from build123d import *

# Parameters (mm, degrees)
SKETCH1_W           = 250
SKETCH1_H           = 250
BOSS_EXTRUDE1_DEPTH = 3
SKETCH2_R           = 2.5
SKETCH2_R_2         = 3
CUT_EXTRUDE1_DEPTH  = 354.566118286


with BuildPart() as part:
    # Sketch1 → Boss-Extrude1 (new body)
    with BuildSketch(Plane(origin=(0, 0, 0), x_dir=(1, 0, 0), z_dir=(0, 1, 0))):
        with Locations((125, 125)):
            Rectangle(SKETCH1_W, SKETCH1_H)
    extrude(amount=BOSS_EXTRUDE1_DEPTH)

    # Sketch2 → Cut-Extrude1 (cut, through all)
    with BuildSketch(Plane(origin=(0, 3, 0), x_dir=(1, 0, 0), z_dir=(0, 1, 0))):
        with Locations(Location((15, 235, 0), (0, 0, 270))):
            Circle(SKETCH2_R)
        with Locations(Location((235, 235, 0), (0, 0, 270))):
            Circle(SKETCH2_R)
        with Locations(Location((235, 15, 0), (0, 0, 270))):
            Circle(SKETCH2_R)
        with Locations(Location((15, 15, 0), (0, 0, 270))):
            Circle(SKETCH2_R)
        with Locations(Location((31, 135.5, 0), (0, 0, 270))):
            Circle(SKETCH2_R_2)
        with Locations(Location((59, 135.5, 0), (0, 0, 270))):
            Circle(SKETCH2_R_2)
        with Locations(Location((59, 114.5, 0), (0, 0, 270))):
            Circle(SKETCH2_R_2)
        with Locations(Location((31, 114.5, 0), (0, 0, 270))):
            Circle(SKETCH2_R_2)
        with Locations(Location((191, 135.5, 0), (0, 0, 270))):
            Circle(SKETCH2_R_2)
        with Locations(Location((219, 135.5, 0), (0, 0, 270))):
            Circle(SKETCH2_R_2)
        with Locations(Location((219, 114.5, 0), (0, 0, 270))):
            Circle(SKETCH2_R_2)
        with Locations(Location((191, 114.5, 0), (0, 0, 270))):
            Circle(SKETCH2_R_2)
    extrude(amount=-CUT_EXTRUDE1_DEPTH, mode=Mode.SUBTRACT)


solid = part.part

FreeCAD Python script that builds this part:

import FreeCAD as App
import Part
import Sketcher
from FreeCAD import Vector


def add_polygon(sketch, points):
    """Adds a closed chain of lines whose ends are joined by coincident constraints."""
    first, n = sketch.GeometryCount, len(points)
    for a, b in zip(points, points[1:] + points[:1]):
        sketch.addGeometry(Part.LineSegment(App.Vector(*a, 0), App.Vector(*b, 0)), False)
    for i in range(n):
        sketch.addConstraint(Sketcher.Constraint("Coincident", first + i, 2, first + (i + 1) % n, 1))

doc = App.newDocument("Part")
body = doc.addObject("PartDesign::Body", "Body")

# Sketch on XZ plane
sketch1 = doc.addObject("Sketcher::SketchObject", "Sketch")
body.addObject(sketch1)
sketch1.AttachmentSupport = (doc.XZ_Plane, [""])
sketch1.MapMode = "FlatFace"
add_polygon(sketch1, [(0, -250), (0, 0), (250, 0), (250, -250)])  # lines 0-3
sketch1.addConstraint([
    Sketcher.Constraint("Vertical", 0),
    Sketcher.Constraint("Horizontal", 1),
    Sketcher.Constraint("Vertical", 2),
    Sketcher.Constraint("Horizontal", 3),
    Sketcher.Constraint("Coincident", 0, 2, -1, 1),
    Sketcher.Constraint("Equal", 3, 0),
    Sketcher.Constraint("DistanceX", 1, 1, 1, 2, 250.0),
])
pad1 = doc.addObject("PartDesign::Pad", "Pad")
body.addObject(pad1)
pad1.Profile = sketch1
pad1.Length = 3
pad1.Reversed = True

# Sketch on XZ plane
sketch2 = doc.addObject("Sketcher::SketchObject", "Sketch001")
body.addObject(sketch2)
sketch2.AttachmentSupport = (doc.XZ_Plane, [""])
sketch2.MapMode = "FlatFace"
sketch2.AttachmentOffset = App.Placement(Vector(0, 0, -3), App.Rotation())
sketch2.addGeometry([
    Part.Circle(Vector(15, -235, 0), Vector(0, 0, 1), 2.5),  # 0
    Part.Circle(Vector(235, -235, 0), Vector(0, 0, 1), 2.5),  # 1
    Part.Circle(Vector(235, -15, 0), Vector(0, 0, 1), 2.5),  # 2
    Part.Circle(Vector(15, -15, 0), Vector(0, 0, 1), 2.5),  # 3
    Part.Circle(Vector(31, -135.5, 0), Vector(0, 0, 1), 3),  # 4
    Part.Circle(Vector(59, -135.5, 0), Vector(0, 0, 1), 3),  # 5
    Part.Circle(Vector(59, -114.5, 0), Vector(0, 0, 1), 3),  # 6
    Part.Circle(Vector(31, -114.5, 0), Vector(0, 0, 1), 3),  # 7
    Part.Circle(Vector(191, -135.5, 0), Vector(0, 0, 1), 3),  # 8
    Part.Circle(Vector(219, -135.5, 0), Vector(0, 0, 1), 3),  # 9
    Part.Circle(Vector(219, -114.5, 0), Vector(0, 0, 1), 3),  # 10
    Part.Circle(Vector(191, -114.5, 0), Vector(0, 0, 1), 3),  # 11
], False)
sketch2.addConstraint([
    Sketcher.Constraint("Equal", 0, 1),
    Sketcher.Constraint("Equal", 1, 2),
    Sketcher.Constraint("Equal", 2, 3),
    Sketcher.Constraint("Equal", 4, 5),
    Sketcher.Constraint("Equal", 5, 6),
    Sketcher.Constraint("Equal", 6, 7),
    Sketcher.Constraint("Equal", 7, 8),
    Sketcher.Constraint("Equal", 8, 9),
    Sketcher.Constraint("Equal", 9, 10),
    Sketcher.Constraint("Equal", 10, 11),
    Sketcher.Constraint("Horizontal", 0, 3, 1, 3),
    Sketcher.Constraint("Horizontal", 2, 3, 3, 3),
    Sketcher.Constraint("Horizontal", 4, 3, 5, 3),
    Sketcher.Constraint("Horizontal", 6, 3, 7, 3),
    Sketcher.Constraint("Horizontal", 5, 3, 8, 3),
    Sketcher.Constraint("Horizontal", 8, 3, 9, 3),
    Sketcher.Constraint("Horizontal", 7, 3, 10, 3),
    Sketcher.Constraint("Horizontal", 10, 3, 11, 3),
    Sketcher.Constraint("Vertical", 1, 3, 2, 3),
    Sketcher.Constraint("Vertical", 0, 3, 3, 3),
    Sketcher.Constraint("Vertical", 5, 3, 6, 3),
    Sketcher.Constraint("Vertical", 4, 3, 7, 3),
    Sketcher.Constraint("Vertical", 9, 3, 10, 3),
    Sketcher.Constraint("Vertical", 8, 3, 11, 3),
    Sketcher.Constraint("Diameter", 0, 5.0),
    Sketcher.Constraint("Diameter", 4, 6.0),
    Sketcher.Constraint("DistanceX", -1, 1, 0, 3, 15.0),
    Sketcher.Constraint("DistanceY", 0, 3, -1, 1, 235.0),
    Sketcher.Constraint("DistanceX", -1, 1, 1, 3, 235.0),
    Sketcher.Constraint("DistanceY", 2, 3, -1, 1, 15.0),
    Sketcher.Constraint("DistanceX", -1, 1, 4, 3, 31.0),
    Sketcher.Constraint("DistanceX", -1, 1, 5, 3, 59.0),
    Sketcher.Constraint("DistanceX", -1, 1, 8, 3, 191.0),
    Sketcher.Constraint("DistanceX", -1, 1, 9, 3, 219.0),
    Sketcher.Constraint("DistanceY", 5, 3, 6, 3, 21.0),
    Sketcher.Constraint("DistanceY", 4, 3, -1, 1, 135.5),
])
pocket1 = doc.addObject("PartDesign::Pocket", "Pocket")
body.addObject(pocket1)
pocket1.Profile = sketch2
pocket1.Type = "ThroughAll"
pocket1.Reversed = True

doc.recompute()
